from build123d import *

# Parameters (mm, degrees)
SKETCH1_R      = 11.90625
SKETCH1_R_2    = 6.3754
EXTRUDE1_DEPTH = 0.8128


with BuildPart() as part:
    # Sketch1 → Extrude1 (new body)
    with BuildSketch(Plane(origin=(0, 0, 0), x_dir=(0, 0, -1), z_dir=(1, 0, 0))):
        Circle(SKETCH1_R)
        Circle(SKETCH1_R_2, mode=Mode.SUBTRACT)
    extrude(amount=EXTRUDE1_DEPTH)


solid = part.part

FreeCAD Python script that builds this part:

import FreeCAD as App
import Part
import Sketcher
from FreeCAD import Vector
Q = App.Units.Quantity

doc = App.newDocument("Part")
body = doc.addObject("PartDesign::Body", "Body")

# Sketch on YZ plane
sketch1 = body.newObject("Sketcher::SketchObject", "Sketch")
sketch1.AttachmentSupport = (doc.getObject("YZ_Plane"), [""])
sketch1.MapMode = "FlatFace"
sketch1.addGeometry([
    Part.Circle(Vector(0, 0, 0), Vector(0, 0, 1), 12),
    Part.Circle(Vector(0, 0, 0), Vector(0, 0, 1), 6),
], False)
sketch1.addConstraint([
    Sketcher.Constraint("Coincident", 0, 3, -1, 1),
    Sketcher.Constraint("Coincident", 1, 3, -1, 1),
    Sketcher.Constraint("Diameter", 0, Q("0.9375 in")),
    Sketcher.Constraint("Diameter", 1, Q("0.502 in")),
])
pad1 = body.newObject("PartDesign::Pad", "Pad")
pad1.Profile = sketch1
pad1.Length = Q("0.032 in")

doc.recompute()
